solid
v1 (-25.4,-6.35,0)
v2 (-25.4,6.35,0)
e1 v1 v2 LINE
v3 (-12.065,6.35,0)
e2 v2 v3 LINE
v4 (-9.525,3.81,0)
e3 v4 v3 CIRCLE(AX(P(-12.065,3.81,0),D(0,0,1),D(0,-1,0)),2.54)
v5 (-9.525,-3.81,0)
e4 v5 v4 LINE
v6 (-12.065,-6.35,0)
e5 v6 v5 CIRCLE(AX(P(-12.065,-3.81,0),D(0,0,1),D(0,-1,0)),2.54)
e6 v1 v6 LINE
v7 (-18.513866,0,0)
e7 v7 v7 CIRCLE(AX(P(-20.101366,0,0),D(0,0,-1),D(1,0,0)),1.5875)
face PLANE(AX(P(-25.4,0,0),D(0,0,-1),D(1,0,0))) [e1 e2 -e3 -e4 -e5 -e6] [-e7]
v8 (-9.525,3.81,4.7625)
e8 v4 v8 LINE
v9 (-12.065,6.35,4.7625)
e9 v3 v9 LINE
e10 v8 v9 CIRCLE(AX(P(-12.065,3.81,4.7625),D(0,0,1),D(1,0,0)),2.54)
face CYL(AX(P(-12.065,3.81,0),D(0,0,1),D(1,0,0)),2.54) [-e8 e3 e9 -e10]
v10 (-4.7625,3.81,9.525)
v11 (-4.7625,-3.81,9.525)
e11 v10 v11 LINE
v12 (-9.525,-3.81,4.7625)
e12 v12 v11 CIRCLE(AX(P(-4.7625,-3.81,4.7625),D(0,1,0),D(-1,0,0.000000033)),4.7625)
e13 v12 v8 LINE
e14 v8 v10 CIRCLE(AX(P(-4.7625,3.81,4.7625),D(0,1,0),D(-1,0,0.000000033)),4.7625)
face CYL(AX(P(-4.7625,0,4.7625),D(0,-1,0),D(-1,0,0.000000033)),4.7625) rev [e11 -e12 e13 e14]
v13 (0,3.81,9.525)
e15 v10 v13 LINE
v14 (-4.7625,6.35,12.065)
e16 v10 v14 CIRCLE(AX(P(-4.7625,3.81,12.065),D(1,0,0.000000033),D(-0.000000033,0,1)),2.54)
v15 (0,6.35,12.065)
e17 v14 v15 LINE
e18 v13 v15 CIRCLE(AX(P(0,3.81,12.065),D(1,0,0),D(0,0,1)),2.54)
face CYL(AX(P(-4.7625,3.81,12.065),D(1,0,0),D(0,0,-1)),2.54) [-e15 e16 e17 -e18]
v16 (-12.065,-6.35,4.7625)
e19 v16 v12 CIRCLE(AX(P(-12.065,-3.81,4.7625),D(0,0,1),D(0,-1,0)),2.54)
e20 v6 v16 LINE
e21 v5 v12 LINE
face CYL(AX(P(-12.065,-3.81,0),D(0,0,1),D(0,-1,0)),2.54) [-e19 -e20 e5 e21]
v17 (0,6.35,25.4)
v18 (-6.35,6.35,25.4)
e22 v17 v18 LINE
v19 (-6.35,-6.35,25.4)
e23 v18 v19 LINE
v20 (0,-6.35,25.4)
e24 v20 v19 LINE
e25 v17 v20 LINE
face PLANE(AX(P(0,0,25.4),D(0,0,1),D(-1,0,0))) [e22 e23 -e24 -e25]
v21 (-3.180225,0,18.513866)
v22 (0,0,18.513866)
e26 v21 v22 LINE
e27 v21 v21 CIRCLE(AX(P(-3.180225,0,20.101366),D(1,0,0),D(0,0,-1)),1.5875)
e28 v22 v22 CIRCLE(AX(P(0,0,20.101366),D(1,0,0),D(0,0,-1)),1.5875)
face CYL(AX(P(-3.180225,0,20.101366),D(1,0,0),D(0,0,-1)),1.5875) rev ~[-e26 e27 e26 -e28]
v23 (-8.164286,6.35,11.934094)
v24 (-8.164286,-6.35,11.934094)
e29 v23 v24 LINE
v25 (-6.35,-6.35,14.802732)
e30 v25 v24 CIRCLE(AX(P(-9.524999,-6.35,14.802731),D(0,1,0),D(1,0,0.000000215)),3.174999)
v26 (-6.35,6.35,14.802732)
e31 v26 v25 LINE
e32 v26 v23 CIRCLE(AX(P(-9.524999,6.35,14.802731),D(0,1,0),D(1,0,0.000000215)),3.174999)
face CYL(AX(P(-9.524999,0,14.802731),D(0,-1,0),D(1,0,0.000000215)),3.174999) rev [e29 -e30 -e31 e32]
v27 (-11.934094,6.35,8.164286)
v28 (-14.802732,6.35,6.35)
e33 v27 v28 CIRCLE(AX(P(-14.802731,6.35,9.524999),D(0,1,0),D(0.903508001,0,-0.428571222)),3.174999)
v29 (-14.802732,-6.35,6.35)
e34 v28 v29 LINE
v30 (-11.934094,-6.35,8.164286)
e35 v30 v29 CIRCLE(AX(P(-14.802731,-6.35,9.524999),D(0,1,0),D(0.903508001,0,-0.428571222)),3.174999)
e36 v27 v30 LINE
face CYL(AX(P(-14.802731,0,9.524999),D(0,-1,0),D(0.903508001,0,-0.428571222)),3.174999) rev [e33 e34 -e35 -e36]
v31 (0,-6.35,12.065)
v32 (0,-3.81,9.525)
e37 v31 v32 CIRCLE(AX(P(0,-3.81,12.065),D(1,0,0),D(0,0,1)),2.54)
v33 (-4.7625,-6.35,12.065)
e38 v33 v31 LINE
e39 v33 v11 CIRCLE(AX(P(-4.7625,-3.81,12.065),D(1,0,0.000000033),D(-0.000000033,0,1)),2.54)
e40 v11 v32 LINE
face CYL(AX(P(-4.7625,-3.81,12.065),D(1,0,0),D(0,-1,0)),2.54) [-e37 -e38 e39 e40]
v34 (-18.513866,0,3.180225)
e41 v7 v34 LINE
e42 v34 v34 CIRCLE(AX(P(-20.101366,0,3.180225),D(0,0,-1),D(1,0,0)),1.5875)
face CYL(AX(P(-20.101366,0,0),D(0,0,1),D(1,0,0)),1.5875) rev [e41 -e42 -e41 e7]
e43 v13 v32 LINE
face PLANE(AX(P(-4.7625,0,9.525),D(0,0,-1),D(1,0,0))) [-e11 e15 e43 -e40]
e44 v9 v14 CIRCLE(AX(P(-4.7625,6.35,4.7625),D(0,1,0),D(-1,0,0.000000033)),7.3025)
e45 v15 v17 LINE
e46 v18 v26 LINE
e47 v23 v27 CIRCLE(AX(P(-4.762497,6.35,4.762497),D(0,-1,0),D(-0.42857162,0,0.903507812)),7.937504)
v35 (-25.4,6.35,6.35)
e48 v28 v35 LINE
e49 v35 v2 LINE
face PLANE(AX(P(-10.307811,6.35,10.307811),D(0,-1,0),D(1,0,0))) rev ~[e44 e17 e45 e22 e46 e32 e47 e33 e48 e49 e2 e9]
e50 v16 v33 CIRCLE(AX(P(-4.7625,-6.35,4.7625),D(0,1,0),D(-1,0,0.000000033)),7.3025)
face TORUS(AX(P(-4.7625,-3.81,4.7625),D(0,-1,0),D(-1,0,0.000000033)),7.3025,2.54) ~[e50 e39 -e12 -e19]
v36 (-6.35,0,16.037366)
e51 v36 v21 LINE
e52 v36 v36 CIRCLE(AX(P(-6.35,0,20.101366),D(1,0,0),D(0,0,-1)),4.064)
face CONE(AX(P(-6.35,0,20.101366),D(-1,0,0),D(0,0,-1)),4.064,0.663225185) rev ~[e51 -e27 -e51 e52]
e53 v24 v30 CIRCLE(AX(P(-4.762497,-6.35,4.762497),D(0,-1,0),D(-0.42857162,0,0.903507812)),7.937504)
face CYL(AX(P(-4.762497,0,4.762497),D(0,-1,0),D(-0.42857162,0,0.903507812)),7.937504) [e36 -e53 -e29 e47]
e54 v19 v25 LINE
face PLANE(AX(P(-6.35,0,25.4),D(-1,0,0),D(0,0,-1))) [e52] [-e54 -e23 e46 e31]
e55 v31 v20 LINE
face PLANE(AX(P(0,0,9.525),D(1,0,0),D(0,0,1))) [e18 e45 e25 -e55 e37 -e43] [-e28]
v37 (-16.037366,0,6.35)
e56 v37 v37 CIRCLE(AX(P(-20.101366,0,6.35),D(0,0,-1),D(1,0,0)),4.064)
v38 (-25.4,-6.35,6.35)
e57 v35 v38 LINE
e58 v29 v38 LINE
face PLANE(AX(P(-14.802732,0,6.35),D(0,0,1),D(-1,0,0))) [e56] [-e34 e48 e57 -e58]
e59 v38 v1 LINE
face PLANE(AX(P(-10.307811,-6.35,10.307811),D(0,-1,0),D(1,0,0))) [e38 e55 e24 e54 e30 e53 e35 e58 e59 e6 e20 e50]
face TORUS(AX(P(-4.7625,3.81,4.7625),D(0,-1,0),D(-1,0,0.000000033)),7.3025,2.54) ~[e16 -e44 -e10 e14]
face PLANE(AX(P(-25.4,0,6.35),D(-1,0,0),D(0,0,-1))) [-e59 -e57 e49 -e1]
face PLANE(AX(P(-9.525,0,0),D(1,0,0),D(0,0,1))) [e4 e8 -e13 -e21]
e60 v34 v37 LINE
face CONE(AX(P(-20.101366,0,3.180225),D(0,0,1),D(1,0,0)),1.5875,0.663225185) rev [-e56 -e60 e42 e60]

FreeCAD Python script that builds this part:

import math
import FreeCAD as App
import Part
import Sketcher
Q = App.Units.Quantity


def edges_at(feature, points):
    """Names of the edges that pass closest to the given points."""
    edges = feature.Shape.Edges
    near = lambda p: min(range(len(edges)), key=lambda i: edges[i].distToShape(Part.Vertex(*p))[0])
    return sorted({f"Edge{near(p) + 1}" for p in points})

doc = App.newDocument("Part")
body = doc.addObject("PartDesign::Body", "Body")

# Sketch on XZ plane
sketch1 = body.newObject("Sketcher::SketchObject", "Sketch")
sketch1.AttachmentSupport = (doc.getObject("XZ_Plane"), [""])
sketch1.MapMode = "FlatFace"
sketch1.addGeometry(Part.ArcOfCircle(Part.Circle(App.Vector(-4.7625, 4.7625, 0), App.Vector(0, 0, 1), 4.7625), math.radians(90.000002), math.radians(179.999998)), False)
sketch1.addGeometry(Part.LineSegment(App.Vector(-4.7625, 9.525, 0), App.Vector(0, 9.525, 0)), False)
sketch1.addGeometry(Part.LineSegment(App.Vector(0, 9.525, 0), App.Vector(0, 25.4, 0)), False)
sketch1.addGeometry(Part.LineSegment(App.Vector(0, 25.4, 0), App.Vector(-6.35, 25.4, 0)), False)
sketch1.addGeometry(Part.LineSegment(App.Vector(-6.35, 25.4, 0), App.Vector(-6.35, 14.802732, 0)), False)
sketch1.addGeometry(Part.ArcOfCircle(Part.Circle(App.Vector(-9.524999, 14.802731, 0), App.Vector(0, 0, 1), 3.174999), math.radians(-64.62308), math.radians(0.000012)), False)
sketch1.addGeometry(Part.ArcOfCircle(Part.Circle(App.Vector(-4.762497, 4.762497, 0), App.Vector(0, 0, 1), 7.937504), math.radians(115.376946), math.radians(154.623054)), False)
sketch1.addGeometry(Part.ArcOfCircle(Part.Circle(App.Vector(-14.802731, 9.524999, 0), App.Vector(0, 0, 1), 3.174999), math.radians(-90.000012), math.radians(-25.37692)), False)
sketch1.addGeometry(Part.LineSegment(App.Vector(-14.802732, 6.35, 0), App.Vector(-25.4, 6.35, 0)), False)
sketch1.addGeometry(Part.LineSegment(App.Vector(-25.4, 6.35, 0), App.Vector(-25.4, 0, 0)), False)
sketch1.addGeometry(Part.LineSegment(App.Vector(-25.4, 0, 0), App.Vector(-9.525, 0, 0)), False)
sketch1.addGeometry(Part.LineSegment(App.Vector(-9.525, 0, 0), App.Vector(-9.525, 4.7625, 0)), False)
sketch1.addConstraint(Sketcher.Constraint("Tangent", 0, 1, 1, 1))
sketch1.addConstraint(Sketcher.Constraint("Coincident", 1, 2, 2, 1))
sketch1.addConstraint(Sketcher.Constraint("Coincident", 2, 2, 3, 1))
sketch1.addConstraint(Sketcher.Constraint("Coincident", 3, 2, 4, 1))
sketch1.addConstraint(Sketcher.Constraint("Tangent", 4, 2, 5, 2))
sketch1.addConstraint(Sketcher.Constraint("Tangent", 5, 1, 6, 1))
sketch1.addConstraint(Sketcher.Constraint("Tangent", 6, 2, 7, 2))
sketch1.addConstraint(Sketcher.Constraint("Tangent", 7, 1, 8, 1))
sketch1.addConstraint(Sketcher.Constraint("Coincident", 8, 2, 9, 1))
sketch1.addConstraint(Sketcher.Constraint("Coincident", 9, 2, 10, 1))
sketch1.addConstraint(Sketcher.Constraint("Coincident", 10, 2, 11, 1))
sketch1.addConstraint(Sketcher.Constraint("Tangent", 11, 2, 0, 2))
sketch1.addConstraint(Sketcher.Constraint("Horizontal", 1))
sketch1.addConstraint(Sketcher.Constraint("Vertical", 2))
sketch1.addConstraint(Sketcher.Constraint("Horizontal", 3))
sketch1.addConstraint(Sketcher.Constraint("Vertical", 4))
sketch1.addConstraint(Sketcher.Constraint("Horizontal", 8))
sketch1.addConstraint(Sketcher.Constraint("Vertical", 9))
sketch1.addConstraint(Sketcher.Constraint("Horizontal", 10))
sketch1.addConstraint(Sketcher.Constraint("Vertical", 11))
sketch1.addConstraint(Sketcher.Constraint("Coincident", 6, 3, 0, 3))
sketch1.addConstraint(Sketcher.Constraint("Equal", 5, 7))
sketch1.addConstraint(Sketcher.Constraint("PointOnObject", 1, 2, -2))
sketch1.addConstraint(Sketcher.Constraint("PointOnObject", 9, 2, -1))
sketch1.addConstraint(Sketcher.Constraint("Horizontal", 7, 3, 0, 1))
sketch1.addConstraint(Sketcher.Constraint("Vertical", 5, 3, 10, 2))
sketch1.addConstraint(Sketcher.Constraint("Equal", 10, 2))
sketch1.addConstraint(Sketcher.Constraint("Equal", 3, 9))
sketch1.addConstraint(Sketcher.Constraint("DistanceY", -1, 1, 2, 2, Q("1 in")))
sketch1.addConstraint(Sketcher.Constraint("Radius", 0, Q("0.1875 in")))
sketch1.addConstraint(Sketcher.Constraint("Radius", 5, Q("0.125 in")))
sketch1.addConstraint(Sketcher.Constraint("DistanceX", 3, 2, 3, 1, Q("0.25 in")))
sketch1.addConstraint(Sketcher.Constraint("Radius", 6, Q("0.3125002 in")))
pad1 = body.newObject("PartDesign::Pad", "Pad")
pad1.Profile = sketch1
pad1.Length = Q("0.5 in")
pad1.Midplane = True
doc.recompute()

fillet = body.newObject("PartDesign::Fillet", "Fillet")
fillet.Base = (pad1, edges_at(pad1, [(-2.381, -6.35, 9.525), (-8.13, 6.35, 8.13)]))
fillet.Radius = Q("0.1 in")

# Sketch on XZ plane
sketch2 = body.newObject("Sketcher::SketchObject", "Sketch001")
sketch2.AttachmentSupport = (doc.getObject("XZ_Plane"), [""])
sketch2.MapMode = "FlatFace"
sketch2.addGeometry(Part.LineSegment(App.Vector(-20.101366, 0, 0), App.Vector(-18.513866, 0, 0)), False)
sketch2.addGeometry(Part.LineSegment(App.Vector(-18.513866, 0, 0), App.Vector(-18.513866, 3.180225, 0)), False)
sketch2.addGeometry(Part.LineSegment(App.Vector(-18.513866, 3.180225, 0), App.Vector(-16.037366, 6.35, 0)), False)
sketch2.addGeometry(Part.LineSegment(App.Vector(-16.037366, 6.35, 0), App.Vector(-13.194864, 9.988236, 0)), False)
sketch2.addGeometry(Part.LineSegment(App.Vector(-13.194864, 9.988236, 0), App.Vector(-20.101366, 9.988236, 0)), False)
sketch2.addGeometry(Part.LineSegment(App.Vector(-20.101366, 9.988236, 0), App.Vector(-20.101366, 0, 0)), False)
sketch2.addGeometry(Part.LineSegment(App.Vector(-20.101366, 9.988236, 0), App.Vector(-20.101366, 0, 0)), True)  # axis
sketch2.addConstraint(Sketcher.Constraint("Coincident", 0, 2, 1, 1))
sketch2.addConstraint(Sketcher.Constraint("Coincident", 1, 2, 2, 1))
sketch2.addConstraint(Sketcher.Constraint("Coincident", 2, 2, 3, 1))
sketch2.addConstraint(Sketcher.Constraint("Coincident", 3, 2, 4, 1))
sketch2.addConstraint(Sketcher.Constraint("Coincident", 4, 2, 5, 1))
sketch2.addConstraint(Sketcher.Constraint("Coincident", 5, 2, 0, 1))
sketch2.addConstraint(Sketcher.Constraint("Horizontal", 0))
sketch2.addConstraint(Sketcher.Constraint("Vertical", 1))
sketch2.addConstraint(Sketcher.Constraint("Horizontal", 4))
sketch2.addConstraint(Sketcher.Constraint("Vertical", 5))
sketch2.addConstraint(Sketcher.Constraint("Vertical", 6))
sketch2.addConstraint(Sketcher.Constraint("Coincident", 6, 1, 4, 2))
sketch2.addConstraint(Sketcher.Constraint("PointOnObject", 0, 2, -1))
sketch2.addConstraint(Sketcher.Constraint("PointOnObject", 6, 2, -1))
sketch2.addConstraint(Sketcher.Constraint("Parallel", 2, 3))
sketch2.addConstraint(Sketcher.Constraint("Angle", 2, Q("51.999996 deg")))
sketch2.addConstraint(Sketcher.Constraint("DistanceX", 0, 1, 0, 2, Q("0.0625 in")))
sketch2.addConstraint(Sketcher.Constraint("DistanceY", -1, 1, 2, 2, Q("0.25 in")))
sketch2.addConstraint(Sketcher.Constraint("DistanceX", 4, 2, 2, 2, Q("0.16 in")))
sketch2.addConstraint(Sketcher.Constraint("DistanceX", 4, 2, 4, 1, 6.906502))
sketch2.addConstraint(Sketcher.Constraint("DistanceX", 0, 2, -1, 1, 18.513866))
groove = body.newObject("PartDesign::Groove", "Groove")
groove.Profile = sketch2
groove.ReferenceAxis = (sketch2, ["Axis0"])
groove.Angle = 360

# Sketch on XZ plane
sketch3 = body.newObject("Sketcher::SketchObject", "Sketch002")
sketch3.AttachmentSupport = (doc.getObject("XZ_Plane"), [""])
sketch3.MapMode = "FlatFace"
sketch3.addGeometry(Part.LineSegment(App.Vector(-9.988236, 13.194864, 0), App.Vector(-6.35, 16.037366, 0)), False)
sketch3.addGeometry(Part.LineSegment(App.Vector(-6.35, 16.037366, 0), App.Vector(-3.180225, 18.513866, 0)), False)
sketch3.addGeometry(Part.LineSegment(App.Vector(-3.180225, 18.513866, 0), App.Vector(0, 18.513866, 0)), False)
sketch3.addGeometry(Part.LineSegment(App.Vector(0, 18.513866, 0), App.Vector(0, 20.101366, 0)), False)
sketch3.addGeometry(Part.LineSegment(App.Vector(0, 20.101366, 0), App.Vector(-9.988236, 20.101366, 0)), False)
sketch3.addGeometry(Part.LineSegment(App.Vector(-9.988236, 20.101366, 0), App.Vector(-9.988236, 13.194864, 0)), False)
sketch3.addGeometry(Part.LineSegment(App.Vector(-9.988236, 20.101366, 0), App.Vector(0, 20.101366, 0)), True)  # axis
sketch3.addConstraint(Sketcher.Constraint("Coincident", 0, 2, 1, 1))
sketch3.addConstraint(Sketcher.Constraint("Coincident", 1, 2, 2, 1))
sketch3.addConstraint(Sketcher.Constraint("Coincident", 2, 2, 3, 1))
sketch3.addConstraint(Sketcher.Constraint("Coincident", 3, 2, 4, 1))
sketch3.addConstraint(Sketcher.Constraint("Coincident", 4, 2, 5, 1))
sketch3.addConstraint(Sketcher.Constraint("Coincident", 5, 2, 0, 1))
sketch3.addConstraint(Sketcher.Constraint("Horizontal", 2))
sketch3.addConstraint(Sketcher.Constraint("Vertical", 3))
sketch3.addConstraint(Sketcher.Constraint("Horizontal", 4))
sketch3.addConstraint(Sketcher.Constraint("Vertical", 5))
sketch3.addConstraint(Sketcher.Constraint("Horizontal", 6))
sketch3.addConstraint(Sketcher.Constraint("Coincident", 6, 1, 4, 2))
sketch3.addConstraint(Sketcher.Constraint("PointOnObject", 2, 2, -2))
sketch3.addConstraint(Sketcher.Constraint("PointOnObject", 6, 2, -2))
sketch3.addConstraint(Sketcher.Constraint("Parallel", 0, 1))
sketch3.addConstraint(Sketcher.Constraint("Angle", 0, Q("38.000005 deg")))
sketch3.addConstraint(Sketcher.Constraint("DistanceY", 3, 1, 3, 2, Q("0.0625 in")))
sketch3.addConstraint(Sketcher.Constraint("DistanceX", 0, 2, -1, 1, Q("0.25 in")))
sketch3.addConstraint(Sketcher.Constraint("DistanceY", 0, 2, 3, 2, Q("0.16 in")))
sketch3.addConstraint(Sketcher.Constraint("DistanceY", 5, 2, 5, 1, 6.906502))
sketch3.addConstraint(Sketcher.Constraint("DistanceY", -1, 1, 0, 2, 16.037366))
groove2 = body.newObject("PartDesign::Groove", "Groove001")
groove2.Profile = sketch3
groove2.ReferenceAxis = (sketch3, ["Axis0"])
groove2.Angle = 360

doc.recompute()
